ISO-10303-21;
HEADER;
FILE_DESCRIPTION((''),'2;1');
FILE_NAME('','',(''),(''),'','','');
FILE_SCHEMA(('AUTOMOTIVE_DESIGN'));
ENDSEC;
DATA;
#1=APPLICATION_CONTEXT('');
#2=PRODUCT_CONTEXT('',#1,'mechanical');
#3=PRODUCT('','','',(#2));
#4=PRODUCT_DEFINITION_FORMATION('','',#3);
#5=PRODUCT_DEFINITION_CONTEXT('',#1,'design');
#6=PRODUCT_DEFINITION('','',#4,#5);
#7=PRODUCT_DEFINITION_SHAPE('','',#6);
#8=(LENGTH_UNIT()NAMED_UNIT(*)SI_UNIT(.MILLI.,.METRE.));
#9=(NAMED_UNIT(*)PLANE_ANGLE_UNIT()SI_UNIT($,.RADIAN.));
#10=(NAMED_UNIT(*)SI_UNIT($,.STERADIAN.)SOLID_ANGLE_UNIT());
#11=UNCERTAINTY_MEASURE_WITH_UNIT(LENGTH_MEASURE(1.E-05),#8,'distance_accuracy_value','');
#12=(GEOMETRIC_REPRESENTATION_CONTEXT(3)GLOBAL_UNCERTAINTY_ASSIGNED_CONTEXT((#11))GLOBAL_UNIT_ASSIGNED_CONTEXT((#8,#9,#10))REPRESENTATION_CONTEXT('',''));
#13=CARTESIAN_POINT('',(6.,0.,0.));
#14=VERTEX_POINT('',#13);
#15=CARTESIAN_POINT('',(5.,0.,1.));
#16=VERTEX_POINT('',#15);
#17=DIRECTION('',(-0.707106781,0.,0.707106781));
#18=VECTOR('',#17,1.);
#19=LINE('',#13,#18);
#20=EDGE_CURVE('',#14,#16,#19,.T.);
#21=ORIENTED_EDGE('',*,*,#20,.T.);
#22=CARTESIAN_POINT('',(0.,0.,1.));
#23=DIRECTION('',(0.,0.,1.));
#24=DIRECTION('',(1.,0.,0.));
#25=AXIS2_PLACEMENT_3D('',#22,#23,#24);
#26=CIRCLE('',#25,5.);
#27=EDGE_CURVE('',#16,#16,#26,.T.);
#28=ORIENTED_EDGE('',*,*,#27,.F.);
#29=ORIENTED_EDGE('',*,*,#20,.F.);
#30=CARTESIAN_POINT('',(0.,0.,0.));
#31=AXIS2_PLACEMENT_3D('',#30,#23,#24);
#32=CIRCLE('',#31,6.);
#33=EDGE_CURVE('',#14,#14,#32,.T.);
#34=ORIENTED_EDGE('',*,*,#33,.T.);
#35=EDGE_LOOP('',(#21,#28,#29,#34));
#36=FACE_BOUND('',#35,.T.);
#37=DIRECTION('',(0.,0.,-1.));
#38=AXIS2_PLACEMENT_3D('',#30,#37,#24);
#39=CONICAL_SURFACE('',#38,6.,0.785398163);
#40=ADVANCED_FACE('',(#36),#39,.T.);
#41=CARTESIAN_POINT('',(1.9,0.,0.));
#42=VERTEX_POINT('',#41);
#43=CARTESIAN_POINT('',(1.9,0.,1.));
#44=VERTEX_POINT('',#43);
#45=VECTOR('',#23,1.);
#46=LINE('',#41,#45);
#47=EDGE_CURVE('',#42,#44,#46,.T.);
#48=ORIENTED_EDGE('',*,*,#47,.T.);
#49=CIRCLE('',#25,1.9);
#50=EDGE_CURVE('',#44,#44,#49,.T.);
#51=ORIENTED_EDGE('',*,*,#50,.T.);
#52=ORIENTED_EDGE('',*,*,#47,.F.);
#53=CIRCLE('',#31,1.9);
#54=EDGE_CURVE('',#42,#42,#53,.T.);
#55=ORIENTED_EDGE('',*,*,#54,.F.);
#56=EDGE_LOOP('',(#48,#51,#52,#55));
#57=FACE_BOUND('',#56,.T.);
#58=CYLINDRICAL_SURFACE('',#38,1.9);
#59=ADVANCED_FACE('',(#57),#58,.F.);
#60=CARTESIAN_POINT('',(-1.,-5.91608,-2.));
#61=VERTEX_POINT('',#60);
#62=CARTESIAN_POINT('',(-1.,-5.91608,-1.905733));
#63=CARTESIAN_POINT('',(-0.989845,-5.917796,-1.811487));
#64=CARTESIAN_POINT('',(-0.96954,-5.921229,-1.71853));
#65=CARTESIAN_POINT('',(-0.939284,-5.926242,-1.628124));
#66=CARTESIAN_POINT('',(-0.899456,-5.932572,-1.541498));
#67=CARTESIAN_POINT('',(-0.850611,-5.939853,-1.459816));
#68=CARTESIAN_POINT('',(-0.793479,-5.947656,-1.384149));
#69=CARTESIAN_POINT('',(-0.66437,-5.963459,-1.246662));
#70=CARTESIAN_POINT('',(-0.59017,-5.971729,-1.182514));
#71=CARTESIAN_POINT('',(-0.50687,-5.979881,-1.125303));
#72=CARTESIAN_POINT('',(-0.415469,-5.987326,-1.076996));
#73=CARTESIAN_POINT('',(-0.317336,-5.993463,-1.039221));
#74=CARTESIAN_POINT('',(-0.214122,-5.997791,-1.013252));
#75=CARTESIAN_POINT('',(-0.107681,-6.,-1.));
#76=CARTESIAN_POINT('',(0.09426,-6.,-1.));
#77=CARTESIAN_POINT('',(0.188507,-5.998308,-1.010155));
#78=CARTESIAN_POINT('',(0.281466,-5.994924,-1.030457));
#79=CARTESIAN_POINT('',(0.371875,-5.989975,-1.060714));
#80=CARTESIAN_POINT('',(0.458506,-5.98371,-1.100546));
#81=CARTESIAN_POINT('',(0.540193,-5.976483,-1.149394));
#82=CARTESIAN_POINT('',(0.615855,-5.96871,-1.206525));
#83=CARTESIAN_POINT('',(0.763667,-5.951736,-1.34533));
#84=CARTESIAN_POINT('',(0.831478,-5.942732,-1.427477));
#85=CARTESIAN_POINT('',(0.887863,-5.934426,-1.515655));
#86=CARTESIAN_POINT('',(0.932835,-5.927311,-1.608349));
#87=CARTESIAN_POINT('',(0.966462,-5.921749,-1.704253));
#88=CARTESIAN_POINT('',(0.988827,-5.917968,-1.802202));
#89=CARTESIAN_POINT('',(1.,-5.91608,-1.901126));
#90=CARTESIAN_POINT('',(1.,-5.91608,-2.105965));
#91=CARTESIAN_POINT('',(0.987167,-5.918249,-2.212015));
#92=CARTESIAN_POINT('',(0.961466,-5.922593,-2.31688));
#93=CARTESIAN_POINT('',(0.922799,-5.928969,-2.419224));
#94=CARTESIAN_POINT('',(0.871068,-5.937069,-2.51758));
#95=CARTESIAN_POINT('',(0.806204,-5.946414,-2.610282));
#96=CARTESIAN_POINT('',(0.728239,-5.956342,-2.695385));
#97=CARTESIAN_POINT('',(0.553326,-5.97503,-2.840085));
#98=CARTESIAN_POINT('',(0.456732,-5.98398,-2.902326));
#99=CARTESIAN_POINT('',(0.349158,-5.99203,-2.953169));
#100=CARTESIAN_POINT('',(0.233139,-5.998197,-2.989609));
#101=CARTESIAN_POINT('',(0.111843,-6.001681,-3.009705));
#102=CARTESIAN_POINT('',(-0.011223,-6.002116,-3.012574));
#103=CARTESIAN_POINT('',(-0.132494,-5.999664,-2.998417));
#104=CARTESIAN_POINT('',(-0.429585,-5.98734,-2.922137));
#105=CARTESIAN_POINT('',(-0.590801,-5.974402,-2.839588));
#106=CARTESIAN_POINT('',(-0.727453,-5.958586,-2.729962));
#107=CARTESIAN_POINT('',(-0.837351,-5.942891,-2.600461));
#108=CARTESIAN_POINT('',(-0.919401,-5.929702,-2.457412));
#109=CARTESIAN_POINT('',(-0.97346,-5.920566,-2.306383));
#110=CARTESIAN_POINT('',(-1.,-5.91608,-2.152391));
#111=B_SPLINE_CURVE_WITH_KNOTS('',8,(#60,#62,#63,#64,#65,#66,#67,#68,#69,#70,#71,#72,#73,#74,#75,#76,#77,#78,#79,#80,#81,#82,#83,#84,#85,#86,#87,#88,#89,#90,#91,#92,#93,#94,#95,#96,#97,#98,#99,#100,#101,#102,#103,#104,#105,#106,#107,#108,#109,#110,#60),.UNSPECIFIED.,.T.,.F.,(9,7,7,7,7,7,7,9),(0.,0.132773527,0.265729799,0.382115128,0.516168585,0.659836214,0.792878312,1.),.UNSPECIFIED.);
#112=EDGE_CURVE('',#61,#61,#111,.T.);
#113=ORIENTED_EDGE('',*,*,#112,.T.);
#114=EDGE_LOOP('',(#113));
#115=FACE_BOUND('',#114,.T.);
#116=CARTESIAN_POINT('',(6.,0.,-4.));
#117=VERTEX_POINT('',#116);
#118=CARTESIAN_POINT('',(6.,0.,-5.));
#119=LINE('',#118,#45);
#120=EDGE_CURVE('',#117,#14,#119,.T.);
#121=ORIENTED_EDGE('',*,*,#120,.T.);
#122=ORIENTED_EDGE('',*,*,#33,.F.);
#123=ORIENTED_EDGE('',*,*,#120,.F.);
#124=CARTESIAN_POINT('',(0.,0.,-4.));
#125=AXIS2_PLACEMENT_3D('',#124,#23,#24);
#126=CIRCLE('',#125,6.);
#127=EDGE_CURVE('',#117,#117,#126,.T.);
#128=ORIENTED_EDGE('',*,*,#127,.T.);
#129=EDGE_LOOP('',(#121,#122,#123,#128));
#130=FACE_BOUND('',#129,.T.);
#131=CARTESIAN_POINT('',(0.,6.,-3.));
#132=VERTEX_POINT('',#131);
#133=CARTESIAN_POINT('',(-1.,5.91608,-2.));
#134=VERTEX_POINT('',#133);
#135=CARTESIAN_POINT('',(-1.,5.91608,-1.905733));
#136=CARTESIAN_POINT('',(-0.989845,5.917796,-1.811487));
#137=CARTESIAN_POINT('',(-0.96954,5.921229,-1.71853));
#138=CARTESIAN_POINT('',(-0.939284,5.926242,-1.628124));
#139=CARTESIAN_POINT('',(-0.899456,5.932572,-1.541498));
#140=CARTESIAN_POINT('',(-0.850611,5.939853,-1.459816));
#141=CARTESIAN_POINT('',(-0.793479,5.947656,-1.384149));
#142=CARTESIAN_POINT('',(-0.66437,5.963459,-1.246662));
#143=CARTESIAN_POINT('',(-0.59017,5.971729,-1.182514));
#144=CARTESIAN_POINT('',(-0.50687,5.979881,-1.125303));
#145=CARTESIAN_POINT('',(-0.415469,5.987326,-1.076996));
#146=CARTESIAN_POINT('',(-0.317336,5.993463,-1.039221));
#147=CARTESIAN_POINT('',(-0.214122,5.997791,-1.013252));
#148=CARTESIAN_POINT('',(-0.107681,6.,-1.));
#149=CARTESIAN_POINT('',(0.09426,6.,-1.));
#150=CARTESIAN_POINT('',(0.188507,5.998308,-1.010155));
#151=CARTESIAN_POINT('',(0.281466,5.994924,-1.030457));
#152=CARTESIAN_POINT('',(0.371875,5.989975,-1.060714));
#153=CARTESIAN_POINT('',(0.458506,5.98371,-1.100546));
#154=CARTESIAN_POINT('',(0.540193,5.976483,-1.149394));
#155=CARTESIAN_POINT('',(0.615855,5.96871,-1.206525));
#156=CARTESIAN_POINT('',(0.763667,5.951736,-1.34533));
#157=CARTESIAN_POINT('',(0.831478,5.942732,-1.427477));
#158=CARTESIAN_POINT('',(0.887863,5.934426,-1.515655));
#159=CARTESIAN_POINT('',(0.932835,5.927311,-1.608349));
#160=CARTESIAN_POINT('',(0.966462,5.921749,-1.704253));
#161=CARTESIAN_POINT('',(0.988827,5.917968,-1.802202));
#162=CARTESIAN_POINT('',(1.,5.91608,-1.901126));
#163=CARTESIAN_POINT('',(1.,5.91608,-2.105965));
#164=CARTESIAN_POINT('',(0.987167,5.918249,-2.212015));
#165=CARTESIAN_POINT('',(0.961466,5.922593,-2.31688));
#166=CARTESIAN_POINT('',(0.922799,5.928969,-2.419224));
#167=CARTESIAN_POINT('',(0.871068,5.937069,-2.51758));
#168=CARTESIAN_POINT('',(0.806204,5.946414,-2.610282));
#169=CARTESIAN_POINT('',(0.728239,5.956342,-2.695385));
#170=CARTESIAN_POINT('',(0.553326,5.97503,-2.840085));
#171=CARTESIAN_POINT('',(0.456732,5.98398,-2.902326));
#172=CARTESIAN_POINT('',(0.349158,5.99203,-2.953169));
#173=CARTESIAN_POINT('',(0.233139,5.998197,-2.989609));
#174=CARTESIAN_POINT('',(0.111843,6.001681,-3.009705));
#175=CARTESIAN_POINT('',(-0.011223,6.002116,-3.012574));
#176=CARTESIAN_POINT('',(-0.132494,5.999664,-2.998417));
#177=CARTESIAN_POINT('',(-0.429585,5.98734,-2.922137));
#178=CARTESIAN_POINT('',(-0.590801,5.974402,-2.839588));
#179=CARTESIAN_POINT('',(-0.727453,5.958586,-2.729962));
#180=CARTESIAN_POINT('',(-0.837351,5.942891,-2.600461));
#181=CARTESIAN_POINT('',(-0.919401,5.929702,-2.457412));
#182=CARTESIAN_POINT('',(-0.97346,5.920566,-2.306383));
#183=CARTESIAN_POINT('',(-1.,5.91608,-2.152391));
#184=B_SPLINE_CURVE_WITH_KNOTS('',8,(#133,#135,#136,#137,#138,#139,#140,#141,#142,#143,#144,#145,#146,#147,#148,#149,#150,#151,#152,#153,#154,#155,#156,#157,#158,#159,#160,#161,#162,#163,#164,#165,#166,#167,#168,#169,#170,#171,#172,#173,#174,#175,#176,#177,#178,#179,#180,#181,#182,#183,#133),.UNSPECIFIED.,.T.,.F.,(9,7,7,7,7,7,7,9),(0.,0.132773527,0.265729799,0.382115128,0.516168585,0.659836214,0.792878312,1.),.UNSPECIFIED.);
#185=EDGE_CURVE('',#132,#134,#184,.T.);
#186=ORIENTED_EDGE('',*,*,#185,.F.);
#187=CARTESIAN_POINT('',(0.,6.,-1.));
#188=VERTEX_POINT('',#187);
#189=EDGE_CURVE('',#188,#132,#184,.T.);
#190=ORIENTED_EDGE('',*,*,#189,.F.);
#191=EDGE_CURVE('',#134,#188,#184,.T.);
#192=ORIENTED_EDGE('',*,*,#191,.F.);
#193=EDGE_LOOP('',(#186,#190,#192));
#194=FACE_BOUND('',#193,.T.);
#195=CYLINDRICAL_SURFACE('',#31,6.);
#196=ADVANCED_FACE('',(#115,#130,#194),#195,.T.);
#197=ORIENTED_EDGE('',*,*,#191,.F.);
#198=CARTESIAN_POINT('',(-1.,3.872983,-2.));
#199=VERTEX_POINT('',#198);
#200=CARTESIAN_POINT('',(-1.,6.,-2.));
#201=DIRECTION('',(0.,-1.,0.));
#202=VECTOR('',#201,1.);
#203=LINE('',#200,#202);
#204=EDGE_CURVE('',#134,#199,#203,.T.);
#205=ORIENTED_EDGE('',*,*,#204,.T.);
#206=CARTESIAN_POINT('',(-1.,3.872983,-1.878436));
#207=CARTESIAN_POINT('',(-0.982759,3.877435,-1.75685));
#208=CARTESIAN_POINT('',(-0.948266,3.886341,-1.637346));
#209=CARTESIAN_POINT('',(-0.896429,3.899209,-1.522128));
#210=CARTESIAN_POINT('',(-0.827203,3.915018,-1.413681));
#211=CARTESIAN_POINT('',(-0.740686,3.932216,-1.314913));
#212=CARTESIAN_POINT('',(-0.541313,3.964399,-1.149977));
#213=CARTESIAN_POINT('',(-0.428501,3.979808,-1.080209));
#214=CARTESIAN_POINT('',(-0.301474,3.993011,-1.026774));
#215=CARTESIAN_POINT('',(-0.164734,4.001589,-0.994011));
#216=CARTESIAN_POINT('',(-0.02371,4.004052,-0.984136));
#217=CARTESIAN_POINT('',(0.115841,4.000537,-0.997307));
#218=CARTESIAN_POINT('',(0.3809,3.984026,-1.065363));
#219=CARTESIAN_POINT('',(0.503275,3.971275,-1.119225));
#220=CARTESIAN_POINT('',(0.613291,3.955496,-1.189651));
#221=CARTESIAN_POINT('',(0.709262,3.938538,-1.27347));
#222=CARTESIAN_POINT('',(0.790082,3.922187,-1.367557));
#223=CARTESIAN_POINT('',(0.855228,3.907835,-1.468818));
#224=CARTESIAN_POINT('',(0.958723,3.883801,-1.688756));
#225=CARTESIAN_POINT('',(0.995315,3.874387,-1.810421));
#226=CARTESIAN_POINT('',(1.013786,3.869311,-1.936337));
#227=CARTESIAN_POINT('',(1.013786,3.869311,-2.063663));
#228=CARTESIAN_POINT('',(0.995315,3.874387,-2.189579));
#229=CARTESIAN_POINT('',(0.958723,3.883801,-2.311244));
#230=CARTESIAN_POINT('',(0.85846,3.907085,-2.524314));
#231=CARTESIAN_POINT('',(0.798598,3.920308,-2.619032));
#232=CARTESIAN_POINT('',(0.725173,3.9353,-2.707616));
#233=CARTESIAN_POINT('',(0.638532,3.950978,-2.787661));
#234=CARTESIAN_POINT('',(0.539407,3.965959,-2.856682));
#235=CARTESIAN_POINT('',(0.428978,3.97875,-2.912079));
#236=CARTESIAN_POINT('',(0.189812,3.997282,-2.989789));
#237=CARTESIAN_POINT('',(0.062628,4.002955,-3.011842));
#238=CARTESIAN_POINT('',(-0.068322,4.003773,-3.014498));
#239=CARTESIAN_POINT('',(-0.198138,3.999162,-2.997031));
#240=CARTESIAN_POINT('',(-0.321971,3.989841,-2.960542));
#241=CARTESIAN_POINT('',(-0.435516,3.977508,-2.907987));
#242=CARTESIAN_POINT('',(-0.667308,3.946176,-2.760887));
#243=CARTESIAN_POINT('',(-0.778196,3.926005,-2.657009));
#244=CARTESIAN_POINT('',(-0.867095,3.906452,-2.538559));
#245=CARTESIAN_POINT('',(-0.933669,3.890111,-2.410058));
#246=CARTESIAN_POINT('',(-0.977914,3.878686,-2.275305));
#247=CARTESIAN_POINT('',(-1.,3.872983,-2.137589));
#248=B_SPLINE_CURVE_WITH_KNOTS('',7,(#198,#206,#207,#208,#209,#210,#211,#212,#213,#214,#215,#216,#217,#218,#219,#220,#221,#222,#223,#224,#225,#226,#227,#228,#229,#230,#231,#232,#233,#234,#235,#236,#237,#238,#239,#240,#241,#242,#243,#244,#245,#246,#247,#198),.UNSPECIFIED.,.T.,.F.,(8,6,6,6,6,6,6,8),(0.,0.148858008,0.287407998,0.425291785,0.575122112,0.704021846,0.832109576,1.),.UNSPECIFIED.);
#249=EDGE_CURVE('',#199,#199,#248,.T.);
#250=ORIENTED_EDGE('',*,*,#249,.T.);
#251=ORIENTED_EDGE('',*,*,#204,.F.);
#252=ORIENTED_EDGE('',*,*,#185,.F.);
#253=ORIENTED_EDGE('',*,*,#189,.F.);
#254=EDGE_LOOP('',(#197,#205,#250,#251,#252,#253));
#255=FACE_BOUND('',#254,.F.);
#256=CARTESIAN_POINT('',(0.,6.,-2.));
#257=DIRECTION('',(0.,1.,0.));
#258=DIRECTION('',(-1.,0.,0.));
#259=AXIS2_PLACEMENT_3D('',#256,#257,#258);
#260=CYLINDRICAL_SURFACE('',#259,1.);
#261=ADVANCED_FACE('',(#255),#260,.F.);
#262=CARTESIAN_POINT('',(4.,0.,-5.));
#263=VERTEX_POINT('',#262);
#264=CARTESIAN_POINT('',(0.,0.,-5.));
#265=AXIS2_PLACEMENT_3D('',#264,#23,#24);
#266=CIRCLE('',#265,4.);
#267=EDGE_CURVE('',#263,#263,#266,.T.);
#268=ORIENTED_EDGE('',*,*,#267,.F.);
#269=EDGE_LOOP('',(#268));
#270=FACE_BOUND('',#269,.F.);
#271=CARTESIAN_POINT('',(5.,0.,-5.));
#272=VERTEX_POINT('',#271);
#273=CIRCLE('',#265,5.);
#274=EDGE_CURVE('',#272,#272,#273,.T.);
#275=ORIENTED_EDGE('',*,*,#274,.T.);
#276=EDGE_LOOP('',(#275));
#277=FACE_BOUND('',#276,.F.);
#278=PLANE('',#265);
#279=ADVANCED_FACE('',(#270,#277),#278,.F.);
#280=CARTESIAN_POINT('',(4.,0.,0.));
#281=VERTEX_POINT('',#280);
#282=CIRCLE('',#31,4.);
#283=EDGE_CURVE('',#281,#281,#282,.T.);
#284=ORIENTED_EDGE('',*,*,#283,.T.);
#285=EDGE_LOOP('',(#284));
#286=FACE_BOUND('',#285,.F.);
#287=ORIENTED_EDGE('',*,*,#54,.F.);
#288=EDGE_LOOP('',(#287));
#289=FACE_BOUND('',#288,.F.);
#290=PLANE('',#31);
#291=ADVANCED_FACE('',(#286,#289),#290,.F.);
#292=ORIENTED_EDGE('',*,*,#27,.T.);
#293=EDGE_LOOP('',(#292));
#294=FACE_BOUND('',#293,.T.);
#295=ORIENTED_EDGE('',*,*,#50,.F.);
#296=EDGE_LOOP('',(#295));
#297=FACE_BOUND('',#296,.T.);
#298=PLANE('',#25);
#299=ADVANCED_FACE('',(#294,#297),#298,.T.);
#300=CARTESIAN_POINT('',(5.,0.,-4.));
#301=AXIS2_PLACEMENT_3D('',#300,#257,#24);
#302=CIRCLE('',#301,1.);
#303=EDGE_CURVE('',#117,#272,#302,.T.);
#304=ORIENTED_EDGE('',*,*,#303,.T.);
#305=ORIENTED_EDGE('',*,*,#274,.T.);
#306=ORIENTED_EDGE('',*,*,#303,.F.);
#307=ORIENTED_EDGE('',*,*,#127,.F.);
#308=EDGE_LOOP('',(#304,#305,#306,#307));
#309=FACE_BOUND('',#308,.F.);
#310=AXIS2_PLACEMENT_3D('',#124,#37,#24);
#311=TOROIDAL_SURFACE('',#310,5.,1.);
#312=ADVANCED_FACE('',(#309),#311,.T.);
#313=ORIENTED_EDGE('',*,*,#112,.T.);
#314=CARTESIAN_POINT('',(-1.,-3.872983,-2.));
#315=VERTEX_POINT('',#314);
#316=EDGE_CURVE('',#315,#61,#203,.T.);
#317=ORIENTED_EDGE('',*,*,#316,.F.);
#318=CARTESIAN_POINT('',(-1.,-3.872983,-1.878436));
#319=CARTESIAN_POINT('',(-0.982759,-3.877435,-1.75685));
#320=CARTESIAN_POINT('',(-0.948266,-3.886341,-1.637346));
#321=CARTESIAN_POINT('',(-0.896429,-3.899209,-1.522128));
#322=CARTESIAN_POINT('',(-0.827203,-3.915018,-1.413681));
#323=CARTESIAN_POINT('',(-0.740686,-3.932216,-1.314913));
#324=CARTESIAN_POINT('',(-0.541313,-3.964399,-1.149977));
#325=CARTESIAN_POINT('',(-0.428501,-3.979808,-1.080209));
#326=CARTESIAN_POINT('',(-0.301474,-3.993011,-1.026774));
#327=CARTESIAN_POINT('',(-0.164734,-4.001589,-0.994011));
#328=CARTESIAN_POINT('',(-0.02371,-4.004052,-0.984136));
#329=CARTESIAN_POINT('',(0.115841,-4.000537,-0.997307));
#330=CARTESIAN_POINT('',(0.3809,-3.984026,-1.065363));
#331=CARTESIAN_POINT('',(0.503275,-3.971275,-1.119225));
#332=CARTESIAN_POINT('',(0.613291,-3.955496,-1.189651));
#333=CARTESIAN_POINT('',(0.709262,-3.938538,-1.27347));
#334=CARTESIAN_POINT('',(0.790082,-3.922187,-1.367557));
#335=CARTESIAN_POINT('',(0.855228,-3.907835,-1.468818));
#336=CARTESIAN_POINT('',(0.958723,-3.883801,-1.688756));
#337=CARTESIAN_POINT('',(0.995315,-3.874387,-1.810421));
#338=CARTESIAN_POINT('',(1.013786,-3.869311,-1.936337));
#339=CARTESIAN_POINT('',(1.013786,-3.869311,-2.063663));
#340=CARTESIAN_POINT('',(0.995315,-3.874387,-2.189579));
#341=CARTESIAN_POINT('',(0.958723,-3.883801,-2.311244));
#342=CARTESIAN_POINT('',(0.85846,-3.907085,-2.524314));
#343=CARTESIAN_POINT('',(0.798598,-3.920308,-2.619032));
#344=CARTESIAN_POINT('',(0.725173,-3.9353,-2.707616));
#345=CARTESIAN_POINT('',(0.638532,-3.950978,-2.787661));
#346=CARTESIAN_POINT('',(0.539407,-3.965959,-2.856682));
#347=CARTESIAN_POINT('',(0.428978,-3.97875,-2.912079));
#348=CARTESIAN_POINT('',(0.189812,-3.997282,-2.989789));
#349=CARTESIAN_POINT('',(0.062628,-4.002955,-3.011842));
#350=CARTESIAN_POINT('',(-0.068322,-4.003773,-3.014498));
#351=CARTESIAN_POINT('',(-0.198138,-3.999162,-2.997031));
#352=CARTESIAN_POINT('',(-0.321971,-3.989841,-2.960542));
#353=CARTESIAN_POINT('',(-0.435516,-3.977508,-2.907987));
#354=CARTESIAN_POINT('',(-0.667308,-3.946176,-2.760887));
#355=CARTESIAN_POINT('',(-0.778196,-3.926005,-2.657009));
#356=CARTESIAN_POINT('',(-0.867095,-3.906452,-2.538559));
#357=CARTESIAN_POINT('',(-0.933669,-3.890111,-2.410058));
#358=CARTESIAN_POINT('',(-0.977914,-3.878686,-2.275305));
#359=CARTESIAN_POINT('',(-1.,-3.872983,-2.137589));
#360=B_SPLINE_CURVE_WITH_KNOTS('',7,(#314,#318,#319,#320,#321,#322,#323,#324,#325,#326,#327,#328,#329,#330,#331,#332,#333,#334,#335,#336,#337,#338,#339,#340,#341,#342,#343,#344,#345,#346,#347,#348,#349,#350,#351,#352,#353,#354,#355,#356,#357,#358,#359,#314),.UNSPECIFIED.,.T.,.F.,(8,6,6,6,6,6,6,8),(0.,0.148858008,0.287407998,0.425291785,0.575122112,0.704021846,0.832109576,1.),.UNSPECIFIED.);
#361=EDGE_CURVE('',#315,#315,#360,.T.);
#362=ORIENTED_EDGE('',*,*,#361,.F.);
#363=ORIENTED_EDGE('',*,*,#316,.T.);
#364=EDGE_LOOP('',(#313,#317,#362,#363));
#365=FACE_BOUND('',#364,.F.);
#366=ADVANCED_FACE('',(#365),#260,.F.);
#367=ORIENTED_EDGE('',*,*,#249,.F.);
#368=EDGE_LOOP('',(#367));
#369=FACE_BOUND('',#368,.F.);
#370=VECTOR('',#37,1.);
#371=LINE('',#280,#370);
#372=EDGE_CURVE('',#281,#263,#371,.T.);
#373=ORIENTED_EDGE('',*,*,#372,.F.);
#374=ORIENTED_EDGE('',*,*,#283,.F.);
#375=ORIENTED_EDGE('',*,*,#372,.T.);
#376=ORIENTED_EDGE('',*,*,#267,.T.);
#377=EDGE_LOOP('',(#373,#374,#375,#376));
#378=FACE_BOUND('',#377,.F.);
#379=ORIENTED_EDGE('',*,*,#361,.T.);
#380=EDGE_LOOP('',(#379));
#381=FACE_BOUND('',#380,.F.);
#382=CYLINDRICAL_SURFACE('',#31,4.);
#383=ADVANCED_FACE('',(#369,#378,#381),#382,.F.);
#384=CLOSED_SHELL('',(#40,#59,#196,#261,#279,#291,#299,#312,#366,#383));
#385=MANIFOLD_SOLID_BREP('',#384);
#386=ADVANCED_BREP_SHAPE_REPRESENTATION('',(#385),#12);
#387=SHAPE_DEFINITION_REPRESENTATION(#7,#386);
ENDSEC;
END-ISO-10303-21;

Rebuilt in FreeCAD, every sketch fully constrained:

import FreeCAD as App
import Part
import Sketcher
from FreeCAD import Vector
Q = App.Units.Quantity


def edges_at(feature, points):
    """Names of the edges that pass closest to the given points."""
    edges = feature.Shape.Edges
    near = lambda p: min(range(len(edges)), key=lambda i: edges[i].distToShape(Part.Vertex(*p))[0])
    return sorted({f"Edge{near(p) + 1}" for p in points})

doc = App.newDocument("Part")
body = doc.addObject("PartDesign::Body", "Body")

sketch1 = doc.addObject("Sketcher::SketchObject", "Sketch")
body.addObject(sketch1)
sketch1.AttachmentSupport = (doc.XY_Plane, [""])
sketch1.MapMode = "FlatFace"
sketch1.addGeometry(Part.Circle(Vector(0, 0, 0), Vector(0, 0, 1), 6), False)
sketch1.addGeometry(Part.Circle(Vector(0, 0, 0), Vector(0, 0, 1), 1.9), False)
sketch1.addConstraint(Sketcher.Constraint("Coincident", 0, 3, -1, 1))
sketch1.addConstraint(Sketcher.Constraint("Coincident", 1, 3, -1, 1))
sketch1.addConstraint(Sketcher.Constraint("Diameter", 1, Q("3.8 mm")))
sketch1.addConstraint(Sketcher.Constraint("Diameter", 0, Q("12 mm")))
pad1 = doc.addObject("PartDesign::Pad", "Pad")
body.addObject(pad1)
pad1.Profile = sketch1
pad1.Length = 1

sketch2 = doc.addObject("Sketcher::SketchObject", "Sketch001")
body.addObject(sketch2)
sketch2.AttachmentSupport = (doc.XY_Plane, [""])
sketch2.MapMode = "FlatFace"
sketch2.addGeometry(Part.Circle(Vector(0, 0, 0), Vector(0, 0, 1), 6), False)
sketch2.addGeometry(Part.Circle(Vector(0, 0, 0), Vector(0, 0, 1), 4), False)
sketch2.addConstraint(Sketcher.Constraint("Coincident", 0, 3, -1, 1))
sketch2.addConstraint(Sketcher.Constraint("Coincident", 1, 3, -1, 1))
sketch2.addConstraint(Sketcher.Constraint("Diameter", 1, Q("8 mm")))
sketch2.addConstraint(Sketcher.Constraint("Diameter", 0, Q("12 mm")))
pad2 = doc.addObject("PartDesign::Pad", "Pad001")
body.addObject(pad2)
pad2.Profile = sketch2
pad2.Length = 5
pad2.Reversed = True

sketch3 = doc.addObject("Sketcher::SketchObject", "Sketch002")
body.addObject(sketch3)
sketch3.AttachmentSupport = (doc.XZ_Plane, [""])
sketch3.MapMode = "FlatFace"
sketch3.AttachmentOffset = App.Placement(Vector(0, 0, -6), App.Rotation())
sketch3.addGeometry(Part.Circle(Vector(0, -2, 0), Vector(0, 0, 1), 1), False)
sketch3.addConstraint(Sketcher.Constraint("PointOnObject", 0, 3, -2))
sketch3.addConstraint(Sketcher.Constraint("Diameter", 0, Q("2 mm")))
sketch3.addConstraint(Sketcher.Constraint("DistanceY", 0, 3, -1, 1, Q("2 mm")))
pocket1 = doc.addObject("PartDesign::Pocket", "Pocket")
body.addObject(pocket1)
pocket1.Profile = sketch3
pocket1.Type = "ThroughAll"
pocket1.Reversed = True
doc.recompute()

chamfer = doc.addObject("PartDesign::Chamfer", "Chamfer")
body.addObject(chamfer)
chamfer.Base = (pocket1, edges_at(pocket1, [(-6, 0, 1)]))
chamfer.Size = 1
doc.recompute()

fillet = doc.addObject("PartDesign::Fillet", "Fillet")
body.addObject(fillet)
fillet.Base = (chamfer, edges_at(chamfer, [(-6, 0, -5)]))
fillet.Radius = 1

doc.recompute()
